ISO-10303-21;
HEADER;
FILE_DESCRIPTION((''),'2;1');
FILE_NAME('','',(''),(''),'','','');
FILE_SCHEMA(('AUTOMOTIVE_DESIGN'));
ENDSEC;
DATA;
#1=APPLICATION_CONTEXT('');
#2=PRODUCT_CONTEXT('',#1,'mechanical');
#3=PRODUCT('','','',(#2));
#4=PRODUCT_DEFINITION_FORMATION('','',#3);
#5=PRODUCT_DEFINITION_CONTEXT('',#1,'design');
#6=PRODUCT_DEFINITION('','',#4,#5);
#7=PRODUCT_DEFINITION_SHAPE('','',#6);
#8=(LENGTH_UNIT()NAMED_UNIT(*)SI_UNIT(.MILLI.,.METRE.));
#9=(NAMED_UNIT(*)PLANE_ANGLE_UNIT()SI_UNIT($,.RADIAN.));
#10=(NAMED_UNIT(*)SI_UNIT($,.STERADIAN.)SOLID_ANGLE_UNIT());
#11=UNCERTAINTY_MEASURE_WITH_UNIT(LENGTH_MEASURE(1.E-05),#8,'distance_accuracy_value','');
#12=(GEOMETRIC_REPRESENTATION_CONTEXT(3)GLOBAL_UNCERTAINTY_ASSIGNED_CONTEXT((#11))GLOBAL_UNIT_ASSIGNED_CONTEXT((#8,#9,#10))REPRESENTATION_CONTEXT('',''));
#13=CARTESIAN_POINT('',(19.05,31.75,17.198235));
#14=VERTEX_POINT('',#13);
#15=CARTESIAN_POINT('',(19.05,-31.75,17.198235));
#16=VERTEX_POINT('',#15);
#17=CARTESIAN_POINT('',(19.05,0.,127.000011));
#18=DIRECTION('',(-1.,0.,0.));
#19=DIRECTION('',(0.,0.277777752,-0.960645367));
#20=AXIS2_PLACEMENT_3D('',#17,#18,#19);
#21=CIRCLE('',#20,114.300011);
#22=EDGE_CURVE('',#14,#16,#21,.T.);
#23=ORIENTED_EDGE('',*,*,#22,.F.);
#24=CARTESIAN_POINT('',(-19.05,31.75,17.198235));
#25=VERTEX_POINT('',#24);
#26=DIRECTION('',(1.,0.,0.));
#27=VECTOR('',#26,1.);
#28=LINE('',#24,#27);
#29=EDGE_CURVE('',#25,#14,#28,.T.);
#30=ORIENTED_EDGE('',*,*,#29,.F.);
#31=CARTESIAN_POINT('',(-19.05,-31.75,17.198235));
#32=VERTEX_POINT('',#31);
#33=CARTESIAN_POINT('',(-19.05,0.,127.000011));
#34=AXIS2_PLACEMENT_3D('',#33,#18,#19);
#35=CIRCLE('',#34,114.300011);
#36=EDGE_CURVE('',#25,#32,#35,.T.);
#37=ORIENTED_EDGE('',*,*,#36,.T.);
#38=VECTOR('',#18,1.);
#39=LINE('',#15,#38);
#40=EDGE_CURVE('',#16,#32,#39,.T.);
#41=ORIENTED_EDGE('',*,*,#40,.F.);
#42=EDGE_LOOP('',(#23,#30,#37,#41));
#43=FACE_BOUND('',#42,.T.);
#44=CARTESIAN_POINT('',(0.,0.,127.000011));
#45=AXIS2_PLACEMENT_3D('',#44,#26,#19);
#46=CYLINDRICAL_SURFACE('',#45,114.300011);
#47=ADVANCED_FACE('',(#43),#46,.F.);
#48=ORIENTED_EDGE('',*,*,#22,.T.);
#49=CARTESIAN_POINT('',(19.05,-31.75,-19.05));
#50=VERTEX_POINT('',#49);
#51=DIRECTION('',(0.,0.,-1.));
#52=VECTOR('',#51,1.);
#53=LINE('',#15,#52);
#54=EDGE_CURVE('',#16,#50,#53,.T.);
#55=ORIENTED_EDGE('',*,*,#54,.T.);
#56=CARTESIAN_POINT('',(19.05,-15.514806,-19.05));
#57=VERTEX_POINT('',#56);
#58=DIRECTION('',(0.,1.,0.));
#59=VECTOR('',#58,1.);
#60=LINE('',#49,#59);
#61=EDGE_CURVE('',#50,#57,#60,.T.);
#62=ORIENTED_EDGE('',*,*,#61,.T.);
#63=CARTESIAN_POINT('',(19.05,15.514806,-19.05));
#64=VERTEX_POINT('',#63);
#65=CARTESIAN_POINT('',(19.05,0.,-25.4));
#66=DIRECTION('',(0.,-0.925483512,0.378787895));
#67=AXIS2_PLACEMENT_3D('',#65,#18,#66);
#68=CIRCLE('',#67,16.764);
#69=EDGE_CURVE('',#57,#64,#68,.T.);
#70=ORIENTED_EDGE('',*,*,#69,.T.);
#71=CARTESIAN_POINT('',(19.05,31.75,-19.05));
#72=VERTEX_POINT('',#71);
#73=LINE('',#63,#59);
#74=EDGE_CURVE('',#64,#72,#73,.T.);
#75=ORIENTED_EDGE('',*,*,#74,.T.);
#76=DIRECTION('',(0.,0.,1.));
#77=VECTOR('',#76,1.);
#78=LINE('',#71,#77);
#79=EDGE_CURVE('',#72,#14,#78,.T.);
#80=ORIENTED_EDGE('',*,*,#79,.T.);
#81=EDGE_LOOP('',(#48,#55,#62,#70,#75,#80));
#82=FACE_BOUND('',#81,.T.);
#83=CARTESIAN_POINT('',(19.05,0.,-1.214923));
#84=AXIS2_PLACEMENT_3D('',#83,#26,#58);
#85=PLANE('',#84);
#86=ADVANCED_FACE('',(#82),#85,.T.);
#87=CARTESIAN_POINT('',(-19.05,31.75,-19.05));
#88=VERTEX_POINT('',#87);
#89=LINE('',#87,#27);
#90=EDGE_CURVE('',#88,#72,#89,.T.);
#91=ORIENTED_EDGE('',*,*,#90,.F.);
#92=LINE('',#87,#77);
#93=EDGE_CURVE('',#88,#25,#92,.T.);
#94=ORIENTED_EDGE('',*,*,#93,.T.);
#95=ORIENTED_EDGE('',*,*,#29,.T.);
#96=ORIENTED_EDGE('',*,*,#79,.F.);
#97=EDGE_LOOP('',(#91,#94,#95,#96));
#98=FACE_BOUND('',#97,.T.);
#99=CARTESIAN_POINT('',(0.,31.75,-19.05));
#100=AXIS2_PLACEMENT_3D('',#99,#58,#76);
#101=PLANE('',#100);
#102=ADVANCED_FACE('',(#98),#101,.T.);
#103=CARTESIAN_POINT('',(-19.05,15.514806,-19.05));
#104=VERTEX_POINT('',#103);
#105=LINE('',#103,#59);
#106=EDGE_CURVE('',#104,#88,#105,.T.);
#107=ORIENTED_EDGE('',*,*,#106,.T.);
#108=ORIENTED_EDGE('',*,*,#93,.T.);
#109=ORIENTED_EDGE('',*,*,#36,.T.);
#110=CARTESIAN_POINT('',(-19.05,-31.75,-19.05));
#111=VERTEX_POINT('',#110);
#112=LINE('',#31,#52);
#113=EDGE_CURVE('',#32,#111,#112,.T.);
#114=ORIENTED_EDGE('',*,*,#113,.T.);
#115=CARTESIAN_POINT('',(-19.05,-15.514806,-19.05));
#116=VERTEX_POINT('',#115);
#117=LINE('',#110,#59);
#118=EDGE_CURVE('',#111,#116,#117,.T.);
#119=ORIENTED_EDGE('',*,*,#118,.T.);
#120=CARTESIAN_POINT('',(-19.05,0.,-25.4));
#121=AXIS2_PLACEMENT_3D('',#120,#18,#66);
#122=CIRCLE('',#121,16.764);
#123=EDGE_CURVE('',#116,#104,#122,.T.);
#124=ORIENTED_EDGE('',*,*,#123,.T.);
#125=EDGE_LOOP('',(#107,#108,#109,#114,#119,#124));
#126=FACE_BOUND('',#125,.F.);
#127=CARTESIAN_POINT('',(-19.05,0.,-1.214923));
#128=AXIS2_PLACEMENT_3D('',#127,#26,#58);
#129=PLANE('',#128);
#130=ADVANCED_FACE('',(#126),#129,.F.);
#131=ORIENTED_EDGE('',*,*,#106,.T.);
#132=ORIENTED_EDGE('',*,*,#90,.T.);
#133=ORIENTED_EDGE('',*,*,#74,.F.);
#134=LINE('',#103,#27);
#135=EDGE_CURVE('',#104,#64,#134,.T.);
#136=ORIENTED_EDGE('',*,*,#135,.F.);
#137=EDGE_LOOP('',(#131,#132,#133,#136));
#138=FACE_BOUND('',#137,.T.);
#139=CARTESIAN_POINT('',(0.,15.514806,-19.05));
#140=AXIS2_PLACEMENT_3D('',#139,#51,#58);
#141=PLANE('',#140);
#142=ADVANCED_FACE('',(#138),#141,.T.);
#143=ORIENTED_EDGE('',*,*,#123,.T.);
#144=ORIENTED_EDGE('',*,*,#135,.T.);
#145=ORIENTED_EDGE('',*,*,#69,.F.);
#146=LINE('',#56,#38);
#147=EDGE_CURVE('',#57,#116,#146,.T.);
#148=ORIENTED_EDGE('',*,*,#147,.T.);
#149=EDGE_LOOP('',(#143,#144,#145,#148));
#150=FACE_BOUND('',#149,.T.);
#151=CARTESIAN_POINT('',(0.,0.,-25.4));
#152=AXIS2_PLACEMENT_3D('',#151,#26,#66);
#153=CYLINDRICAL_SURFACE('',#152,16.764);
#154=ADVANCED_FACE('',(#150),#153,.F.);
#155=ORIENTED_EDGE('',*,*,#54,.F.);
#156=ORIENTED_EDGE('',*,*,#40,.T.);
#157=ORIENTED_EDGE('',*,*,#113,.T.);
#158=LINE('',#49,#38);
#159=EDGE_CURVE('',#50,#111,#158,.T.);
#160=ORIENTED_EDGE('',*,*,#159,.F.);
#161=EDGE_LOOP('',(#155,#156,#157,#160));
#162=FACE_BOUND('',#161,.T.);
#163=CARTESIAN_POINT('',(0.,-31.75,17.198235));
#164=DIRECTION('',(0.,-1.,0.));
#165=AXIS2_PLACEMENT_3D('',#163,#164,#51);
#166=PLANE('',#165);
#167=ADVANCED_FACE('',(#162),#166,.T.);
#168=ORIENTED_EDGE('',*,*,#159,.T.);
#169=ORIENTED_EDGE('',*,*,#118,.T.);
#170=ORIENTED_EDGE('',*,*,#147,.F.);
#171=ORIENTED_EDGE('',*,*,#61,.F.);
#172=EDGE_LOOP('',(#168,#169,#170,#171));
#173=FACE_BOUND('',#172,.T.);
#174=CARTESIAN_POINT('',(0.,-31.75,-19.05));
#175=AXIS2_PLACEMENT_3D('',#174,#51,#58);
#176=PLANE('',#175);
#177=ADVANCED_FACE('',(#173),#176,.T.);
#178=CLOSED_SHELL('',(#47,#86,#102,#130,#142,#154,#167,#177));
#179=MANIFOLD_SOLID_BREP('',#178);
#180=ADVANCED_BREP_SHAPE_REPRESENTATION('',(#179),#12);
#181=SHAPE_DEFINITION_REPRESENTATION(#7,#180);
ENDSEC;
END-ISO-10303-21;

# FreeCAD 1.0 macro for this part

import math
import FreeCAD as App
import Part
import Sketcher
from FreeCAD import Vector
Q = App.Units.Quantity

doc = App.newDocument("Part")
body = doc.addObject("PartDesign::Body", "Body")

# Sketch on YZ plane
sketch1 = body.newObject("Sketcher::SketchObject", "Sketch")
sketch1.AttachmentSupport = (doc.getObject("YZ_Plane"), [""])
sketch1.MapMode = "FlatFace"
sketch1.addGeometry(Part.ArcOfCircle(Part.Circle(Vector(0, -25, 0), Vector(0, 0, 1), 17), math.radians(22), math.radians(158)), False)
sketch1.addGeometry(Part.LineSegment(Vector(16, -19, 0), Vector(32, -19, 0)), False)
sketch1.addGeometry(Part.LineSegment(Vector(32, -19, 0), Vector(32, 17, 0)), False)
sketch1.addGeometry(Part.ArcOfCircle(Part.Circle(Vector(0, 127, 0), Vector(0, 0, 1), 114), math.radians(-106), math.radians(-74)), False)
sketch1.addGeometry(Part.LineSegment(Vector(-32, 17, 0), Vector(-32, -19, 0)), False)
sketch1.addGeometry(Part.LineSegment(Vector(-32, -19, 0), Vector(-16, -19, 0)), False)
sketch1.addConstraint(Sketcher.Constraint("Coincident", 0, 1, 1, 1))
sketch1.addConstraint(Sketcher.Constraint("Coincident", 1, 2, 2, 1))
sketch1.addConstraint(Sketcher.Constraint("Coincident", 2, 2, 3, 2))
sketch1.addConstraint(Sketcher.Constraint("Coincident", 3, 1, 4, 1))
sketch1.addConstraint(Sketcher.Constraint("Coincident", 4, 2, 5, 1))
sketch1.addConstraint(Sketcher.Constraint("Coincident", 5, 2, 0, 2))
sketch1.addConstraint(Sketcher.Constraint("Horizontal", 1))
sketch1.addConstraint(Sketcher.Constraint("Vertical", 2))
sketch1.addConstraint(Sketcher.Constraint("Vertical", 4))
sketch1.addConstraint(Sketcher.Constraint("Horizontal", 5))
sketch1.addConstraint(Sketcher.Constraint("Symmetric", 2, 2, 3, 1, -2))
sketch1.addConstraint(Sketcher.Constraint("Symmetric", 0, 1, 5, 2, -2))
sketch1.addConstraint(Sketcher.Constraint("Radius", 0, Q("0.66 in")))
sketch1.addConstraint(Sketcher.Constraint("DistanceY", 0, 3, -1, 1, Q("1 in")))
sketch1.addConstraint(Sketcher.Constraint("DistanceX", 3, 1, 2, 2, Q("2.5 in")))
sketch1.addConstraint(Sketcher.Constraint("DistanceY", 0, 1, -1, 1, Q("0.75 in")))
sketch1.addConstraint(Sketcher.Constraint("Radius", 3, Q("114.300011 mm")))
sketch1.addConstraint(Sketcher.Constraint("DistanceY", 2, 1, 2, 2, Q("36.248235 mm")))
pad1 = body.newObject("PartDesign::Pad", "Pad")
pad1.Profile = sketch1
pad1.Type = "TwoLengths"
pad1.Length = Q("0.75 in")
pad1.Length2 = Q("0.75 in")

doc.recompute()
